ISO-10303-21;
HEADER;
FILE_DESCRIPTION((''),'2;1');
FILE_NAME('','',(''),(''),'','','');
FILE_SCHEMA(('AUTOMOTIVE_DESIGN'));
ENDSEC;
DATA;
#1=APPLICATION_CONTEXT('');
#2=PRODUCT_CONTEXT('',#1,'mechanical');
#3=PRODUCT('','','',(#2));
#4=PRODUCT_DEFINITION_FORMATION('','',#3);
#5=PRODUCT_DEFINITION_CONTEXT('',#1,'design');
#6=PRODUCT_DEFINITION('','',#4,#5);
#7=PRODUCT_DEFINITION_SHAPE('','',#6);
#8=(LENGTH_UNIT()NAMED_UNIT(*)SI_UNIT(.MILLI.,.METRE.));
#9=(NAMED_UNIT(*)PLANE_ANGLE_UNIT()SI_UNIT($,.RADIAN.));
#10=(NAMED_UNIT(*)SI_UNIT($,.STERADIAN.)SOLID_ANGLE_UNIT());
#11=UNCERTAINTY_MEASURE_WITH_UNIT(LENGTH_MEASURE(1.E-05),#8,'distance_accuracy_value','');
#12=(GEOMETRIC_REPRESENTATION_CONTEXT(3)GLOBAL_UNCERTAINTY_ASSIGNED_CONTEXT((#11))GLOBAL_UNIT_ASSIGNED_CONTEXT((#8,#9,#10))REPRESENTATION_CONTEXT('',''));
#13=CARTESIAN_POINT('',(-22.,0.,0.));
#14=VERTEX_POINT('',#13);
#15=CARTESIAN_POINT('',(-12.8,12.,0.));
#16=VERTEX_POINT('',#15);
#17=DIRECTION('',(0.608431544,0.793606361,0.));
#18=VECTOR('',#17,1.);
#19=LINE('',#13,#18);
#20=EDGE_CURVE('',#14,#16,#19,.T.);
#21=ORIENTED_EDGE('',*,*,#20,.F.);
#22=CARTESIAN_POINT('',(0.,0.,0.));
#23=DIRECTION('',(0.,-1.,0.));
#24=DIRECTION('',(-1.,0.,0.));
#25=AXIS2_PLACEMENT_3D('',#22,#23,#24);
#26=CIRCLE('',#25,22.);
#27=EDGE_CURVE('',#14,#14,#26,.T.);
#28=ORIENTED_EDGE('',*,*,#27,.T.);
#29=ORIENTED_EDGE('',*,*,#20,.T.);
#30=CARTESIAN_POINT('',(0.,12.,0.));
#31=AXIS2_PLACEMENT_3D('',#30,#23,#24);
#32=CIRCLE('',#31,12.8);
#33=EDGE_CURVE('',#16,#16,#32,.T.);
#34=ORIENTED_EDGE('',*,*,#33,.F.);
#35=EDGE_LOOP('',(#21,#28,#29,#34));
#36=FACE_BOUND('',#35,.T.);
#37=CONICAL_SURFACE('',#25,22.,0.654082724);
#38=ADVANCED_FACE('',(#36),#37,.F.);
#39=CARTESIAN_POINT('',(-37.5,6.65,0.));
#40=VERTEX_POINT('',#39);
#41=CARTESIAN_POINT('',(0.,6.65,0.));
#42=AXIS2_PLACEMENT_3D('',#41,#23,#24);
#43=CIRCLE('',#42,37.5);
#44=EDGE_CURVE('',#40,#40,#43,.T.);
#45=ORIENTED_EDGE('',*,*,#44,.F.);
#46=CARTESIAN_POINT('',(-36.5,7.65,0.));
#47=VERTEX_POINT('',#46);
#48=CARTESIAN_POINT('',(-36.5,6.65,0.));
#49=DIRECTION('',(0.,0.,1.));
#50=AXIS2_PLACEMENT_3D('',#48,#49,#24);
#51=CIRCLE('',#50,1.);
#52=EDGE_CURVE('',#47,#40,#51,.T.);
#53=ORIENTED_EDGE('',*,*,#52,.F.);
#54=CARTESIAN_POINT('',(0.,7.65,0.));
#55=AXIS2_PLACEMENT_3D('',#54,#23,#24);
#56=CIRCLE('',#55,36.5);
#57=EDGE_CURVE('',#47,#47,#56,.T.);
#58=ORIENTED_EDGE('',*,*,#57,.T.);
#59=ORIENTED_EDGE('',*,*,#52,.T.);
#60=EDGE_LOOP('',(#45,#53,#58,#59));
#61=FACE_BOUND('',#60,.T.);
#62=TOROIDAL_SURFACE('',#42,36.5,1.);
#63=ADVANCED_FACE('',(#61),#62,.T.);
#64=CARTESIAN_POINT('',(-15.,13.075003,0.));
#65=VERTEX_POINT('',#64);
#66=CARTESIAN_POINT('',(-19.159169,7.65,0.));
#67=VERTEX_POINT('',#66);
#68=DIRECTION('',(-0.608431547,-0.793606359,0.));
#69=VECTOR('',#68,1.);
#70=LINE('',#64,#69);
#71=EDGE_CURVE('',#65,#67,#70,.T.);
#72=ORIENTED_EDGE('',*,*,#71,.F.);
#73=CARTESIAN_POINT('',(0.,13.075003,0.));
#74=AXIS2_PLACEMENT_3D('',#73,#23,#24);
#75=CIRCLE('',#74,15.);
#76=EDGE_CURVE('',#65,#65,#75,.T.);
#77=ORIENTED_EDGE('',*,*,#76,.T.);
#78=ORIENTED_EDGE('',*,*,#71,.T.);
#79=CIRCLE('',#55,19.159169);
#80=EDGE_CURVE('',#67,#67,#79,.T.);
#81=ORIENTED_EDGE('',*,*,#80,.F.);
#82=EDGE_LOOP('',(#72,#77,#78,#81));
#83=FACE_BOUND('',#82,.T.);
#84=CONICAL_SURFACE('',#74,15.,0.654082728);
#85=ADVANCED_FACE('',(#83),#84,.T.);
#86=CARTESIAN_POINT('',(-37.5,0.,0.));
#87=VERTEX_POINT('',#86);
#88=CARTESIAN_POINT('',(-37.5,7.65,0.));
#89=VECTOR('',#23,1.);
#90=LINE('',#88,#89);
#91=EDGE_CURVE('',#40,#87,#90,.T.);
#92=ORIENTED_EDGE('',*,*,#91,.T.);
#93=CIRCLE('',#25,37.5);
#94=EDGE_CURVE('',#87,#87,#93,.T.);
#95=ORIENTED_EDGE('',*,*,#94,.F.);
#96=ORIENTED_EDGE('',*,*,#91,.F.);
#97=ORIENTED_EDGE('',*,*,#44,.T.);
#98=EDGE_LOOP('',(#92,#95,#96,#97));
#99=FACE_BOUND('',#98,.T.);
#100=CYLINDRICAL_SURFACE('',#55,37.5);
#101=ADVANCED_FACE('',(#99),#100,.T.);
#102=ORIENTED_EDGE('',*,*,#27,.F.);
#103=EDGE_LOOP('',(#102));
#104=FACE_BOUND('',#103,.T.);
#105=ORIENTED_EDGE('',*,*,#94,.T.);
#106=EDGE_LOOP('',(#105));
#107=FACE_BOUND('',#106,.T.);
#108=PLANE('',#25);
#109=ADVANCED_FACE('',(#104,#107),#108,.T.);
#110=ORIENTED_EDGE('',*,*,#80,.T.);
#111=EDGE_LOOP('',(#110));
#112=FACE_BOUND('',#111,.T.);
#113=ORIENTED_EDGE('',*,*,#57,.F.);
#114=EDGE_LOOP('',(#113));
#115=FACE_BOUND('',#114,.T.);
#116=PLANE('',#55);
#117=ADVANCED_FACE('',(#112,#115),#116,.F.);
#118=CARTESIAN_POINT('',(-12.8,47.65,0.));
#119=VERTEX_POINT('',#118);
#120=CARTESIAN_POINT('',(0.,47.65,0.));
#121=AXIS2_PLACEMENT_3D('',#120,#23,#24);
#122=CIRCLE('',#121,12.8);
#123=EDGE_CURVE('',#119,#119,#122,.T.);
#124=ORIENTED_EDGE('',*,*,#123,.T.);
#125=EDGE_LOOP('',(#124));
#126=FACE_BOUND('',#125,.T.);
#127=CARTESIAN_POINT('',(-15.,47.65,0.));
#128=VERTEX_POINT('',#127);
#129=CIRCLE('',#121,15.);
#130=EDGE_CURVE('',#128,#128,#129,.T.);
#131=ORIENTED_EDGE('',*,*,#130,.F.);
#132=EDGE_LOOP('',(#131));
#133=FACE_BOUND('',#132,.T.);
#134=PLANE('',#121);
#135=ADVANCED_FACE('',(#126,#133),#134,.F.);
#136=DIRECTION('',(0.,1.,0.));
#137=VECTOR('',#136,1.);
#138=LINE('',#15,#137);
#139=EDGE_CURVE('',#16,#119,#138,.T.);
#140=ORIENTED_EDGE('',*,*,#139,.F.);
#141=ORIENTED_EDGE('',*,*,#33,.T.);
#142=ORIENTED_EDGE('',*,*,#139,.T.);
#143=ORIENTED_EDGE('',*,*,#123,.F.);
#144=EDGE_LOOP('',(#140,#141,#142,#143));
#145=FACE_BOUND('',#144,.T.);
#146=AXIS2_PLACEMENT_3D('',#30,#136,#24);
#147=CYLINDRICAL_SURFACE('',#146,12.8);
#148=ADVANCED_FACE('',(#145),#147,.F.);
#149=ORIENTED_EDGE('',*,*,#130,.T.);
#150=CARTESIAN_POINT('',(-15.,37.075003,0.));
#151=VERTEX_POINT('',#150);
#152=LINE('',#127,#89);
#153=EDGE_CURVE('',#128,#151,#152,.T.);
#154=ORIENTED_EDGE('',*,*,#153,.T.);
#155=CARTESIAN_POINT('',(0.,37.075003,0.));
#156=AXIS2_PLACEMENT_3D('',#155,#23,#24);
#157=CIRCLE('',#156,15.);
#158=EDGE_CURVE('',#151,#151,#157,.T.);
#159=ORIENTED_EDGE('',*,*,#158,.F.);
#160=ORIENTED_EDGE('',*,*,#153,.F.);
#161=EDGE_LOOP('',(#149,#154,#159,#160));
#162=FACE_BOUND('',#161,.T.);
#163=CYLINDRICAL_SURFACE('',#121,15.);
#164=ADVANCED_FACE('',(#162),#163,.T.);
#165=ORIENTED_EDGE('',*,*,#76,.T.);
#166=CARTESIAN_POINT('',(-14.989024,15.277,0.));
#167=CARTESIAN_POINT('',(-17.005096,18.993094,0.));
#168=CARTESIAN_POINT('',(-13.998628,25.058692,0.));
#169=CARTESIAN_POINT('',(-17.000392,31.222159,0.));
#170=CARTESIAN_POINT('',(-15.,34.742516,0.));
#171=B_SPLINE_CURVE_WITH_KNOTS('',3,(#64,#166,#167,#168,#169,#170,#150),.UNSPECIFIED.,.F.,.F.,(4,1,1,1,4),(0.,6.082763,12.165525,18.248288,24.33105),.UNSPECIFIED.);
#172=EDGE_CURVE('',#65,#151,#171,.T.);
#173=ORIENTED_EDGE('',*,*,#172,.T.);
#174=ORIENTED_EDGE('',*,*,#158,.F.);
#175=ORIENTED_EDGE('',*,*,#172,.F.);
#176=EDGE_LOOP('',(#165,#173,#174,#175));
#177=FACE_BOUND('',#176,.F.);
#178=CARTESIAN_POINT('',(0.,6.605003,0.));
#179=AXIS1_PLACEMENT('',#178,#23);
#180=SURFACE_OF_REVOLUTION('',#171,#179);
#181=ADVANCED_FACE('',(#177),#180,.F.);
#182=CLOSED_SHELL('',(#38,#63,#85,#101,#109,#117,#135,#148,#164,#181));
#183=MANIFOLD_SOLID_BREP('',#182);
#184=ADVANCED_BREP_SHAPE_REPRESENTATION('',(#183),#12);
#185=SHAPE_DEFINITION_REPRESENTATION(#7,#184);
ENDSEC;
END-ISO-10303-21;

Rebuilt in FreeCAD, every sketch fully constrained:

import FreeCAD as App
import Part
import Sketcher

V = App.Vector
Q = App.Units.Quantity


def edges_at(feature, points):
    """Names of the edges that pass closest to the given points."""
    edges = feature.Shape.Edges
    near = lambda p: min(range(len(edges)), key=lambda i: edges[i].distToShape(Part.Vertex(*p))[0])
    return sorted({f"Edge{near(p) + 1}" for p in points})

doc = App.newDocument("Part")
params = doc.addObject("Spreadsheet::Sheet", "Params")
for row, (alias, value) in enumerate([
    ("sketch1_width", "15.5 mm"),
    ("sketch1_width2", "2.2 mm"),
    ("sketch1_height", "35.65 mm"),
    ("revolution_angle", "360 deg"),
    ("fillet_radius", "1 mm"),
], start=1):
    params.set(f"A{row}", alias)
    params.set(f"B{row}", "=" + value)
    params.setAlias(f"B{row}", alias)

body = doc.addObject("PartDesign::Body", "Body")

# Sketch on XY plane
sketch1 = doc.addObject("Sketcher::SketchObject", "Sketch")
body.addObject(sketch1)
sketch1.AttachmentSupport = (doc.XY_Plane, [""])
sketch1.MapMode = "FlatFace"
sketch1.addGeometry(Part.LineSegment(V(-37.5, 0, 0), V(-22, 0, 0)), False)
sketch1.addGeometry(Part.LineSegment(V(-22, 0, 0), V(-12.8, 12, 0)), False)
sketch1.addGeometry(Part.LineSegment(V(-12.8, 12, 0), V(-12.8, 47.65, 0)), False)
sketch1.addGeometry(Part.LineSegment(V(-12.8, 47.65, 0), V(-15, 47.65, 0)), False)
sketch1.addGeometry(Part.LineSegment(V(-15, 47.65, 0), V(-15, 37.075003, 0)), False)
sketch1.addGeometry(Part.BSplineCurve([V(-15, 13.075003, 0), V(-14.989024, 15.277, 0), V(-17.005096, 18.993094, 0), V(-13.998628, 25.058692, 0), V(-17.000392, 31.222159, 0), V(-15, 34.742516, 0), V(-15, 37.075003, 0)], [4, 1, 1, 1, 4], [0, 6.082763, 12.165525, 18.248288, 24.33105], False, 3, [1, 1, 1, 1, 1, 1, 1], False), False)
sketch1.addGeometry(Part.LineSegment(V(-15, 13.075003, 0), V(-19.159169, 7.65, 0)), False)
sketch1.addGeometry(Part.LineSegment(V(-19.159169, 7.65, 0), V(-37.5, 7.65, 0)), False)
sketch1.addGeometry(Part.LineSegment(V(-37.5, 7.65, 0), V(-37.5, 0, 0)), False)
sketch1.addConstraint(Sketcher.Constraint("Block", 5))
sketch1.addConstraint(Sketcher.Constraint("Coincident", 0, 2, 1, 1))
sketch1.addConstraint(Sketcher.Constraint("Coincident", 1, 2, 2, 1))
sketch1.addConstraint(Sketcher.Constraint("Coincident", 2, 2, 3, 1))
sketch1.addConstraint(Sketcher.Constraint("Coincident", 3, 2, 4, 1))
sketch1.addConstraint(Sketcher.Constraint("Coincident", 4, 2, 5, 2))
sketch1.addConstraint(Sketcher.Constraint("Coincident", 5, 1, 6, 1))
sketch1.addConstraint(Sketcher.Constraint("Coincident", 6, 2, 7, 1))
sketch1.addConstraint(Sketcher.Constraint("Coincident", 7, 2, 8, 1))
sketch1.addConstraint(Sketcher.Constraint("Coincident", 8, 2, 0, 1))
sketch1.addConstraint(Sketcher.Constraint("Horizontal", 0))
sketch1.addConstraint(Sketcher.Constraint("Vertical", 2))
sketch1.addConstraint(Sketcher.Constraint("Horizontal", 3))
sketch1.addConstraint(Sketcher.Constraint("Vertical", 4))
sketch1.addConstraint(Sketcher.Constraint("Horizontal", 7))
sketch1.addConstraint(Sketcher.Constraint("Vertical", 8))
sketch1.addConstraint(Sketcher.Constraint("PointOnObject", 0, 2, -1))
sketch1.addConstraint(Sketcher.Constraint("DistanceX", 0, 1, 0, 2, Q("15.5 mm")))
sketch1.addConstraint(Sketcher.Constraint("DistanceX", 3, 2, 3, 1, Q("2.2 mm")))
sketch1.addConstraint(Sketcher.Constraint("DistanceX", 0, 2, -1, 1, Q("22 mm")))
sketch1.addConstraint(Sketcher.Constraint("DistanceY", -1, 1, 1, 2, Q("12 mm")))
sketch1.addConstraint(Sketcher.Constraint("DistanceY", 6, 2, 3, 2, Q("40 mm")))
sketch1.addConstraint(Sketcher.Constraint("DistanceY", 2, 1, 2, 2, Q("35.65 mm")))
sketch1.addConstraint(Sketcher.Constraint("DistanceX", 7, 2, 7, 1, Q("18.340831 mm")))
sketch1.setExpression("Constraints[17]", "Params.sketch1_width")
sketch1.setExpression("Constraints[18]", "Params.sketch1_width2")
sketch1.setExpression("Constraints[22]", "Params.sketch1_height")
revolution = doc.addObject("PartDesign::Revolution", "Revolution")
body.addObject(revolution)
revolution.Profile = sketch1
revolution.ReferenceAxis = (sketch1, ["V_Axis"])
revolution.setExpression("Angle", "Params.revolution_angle")
doc.recompute()

fillet = doc.addObject("PartDesign::Fillet", "Fillet")
body.addObject(fillet)
fillet.Base = (revolution, edges_at(revolution, [(37.5, 7.65, 0)]))
fillet.setExpression("Radius", "Params.fillet_radius")

doc.recompute()
